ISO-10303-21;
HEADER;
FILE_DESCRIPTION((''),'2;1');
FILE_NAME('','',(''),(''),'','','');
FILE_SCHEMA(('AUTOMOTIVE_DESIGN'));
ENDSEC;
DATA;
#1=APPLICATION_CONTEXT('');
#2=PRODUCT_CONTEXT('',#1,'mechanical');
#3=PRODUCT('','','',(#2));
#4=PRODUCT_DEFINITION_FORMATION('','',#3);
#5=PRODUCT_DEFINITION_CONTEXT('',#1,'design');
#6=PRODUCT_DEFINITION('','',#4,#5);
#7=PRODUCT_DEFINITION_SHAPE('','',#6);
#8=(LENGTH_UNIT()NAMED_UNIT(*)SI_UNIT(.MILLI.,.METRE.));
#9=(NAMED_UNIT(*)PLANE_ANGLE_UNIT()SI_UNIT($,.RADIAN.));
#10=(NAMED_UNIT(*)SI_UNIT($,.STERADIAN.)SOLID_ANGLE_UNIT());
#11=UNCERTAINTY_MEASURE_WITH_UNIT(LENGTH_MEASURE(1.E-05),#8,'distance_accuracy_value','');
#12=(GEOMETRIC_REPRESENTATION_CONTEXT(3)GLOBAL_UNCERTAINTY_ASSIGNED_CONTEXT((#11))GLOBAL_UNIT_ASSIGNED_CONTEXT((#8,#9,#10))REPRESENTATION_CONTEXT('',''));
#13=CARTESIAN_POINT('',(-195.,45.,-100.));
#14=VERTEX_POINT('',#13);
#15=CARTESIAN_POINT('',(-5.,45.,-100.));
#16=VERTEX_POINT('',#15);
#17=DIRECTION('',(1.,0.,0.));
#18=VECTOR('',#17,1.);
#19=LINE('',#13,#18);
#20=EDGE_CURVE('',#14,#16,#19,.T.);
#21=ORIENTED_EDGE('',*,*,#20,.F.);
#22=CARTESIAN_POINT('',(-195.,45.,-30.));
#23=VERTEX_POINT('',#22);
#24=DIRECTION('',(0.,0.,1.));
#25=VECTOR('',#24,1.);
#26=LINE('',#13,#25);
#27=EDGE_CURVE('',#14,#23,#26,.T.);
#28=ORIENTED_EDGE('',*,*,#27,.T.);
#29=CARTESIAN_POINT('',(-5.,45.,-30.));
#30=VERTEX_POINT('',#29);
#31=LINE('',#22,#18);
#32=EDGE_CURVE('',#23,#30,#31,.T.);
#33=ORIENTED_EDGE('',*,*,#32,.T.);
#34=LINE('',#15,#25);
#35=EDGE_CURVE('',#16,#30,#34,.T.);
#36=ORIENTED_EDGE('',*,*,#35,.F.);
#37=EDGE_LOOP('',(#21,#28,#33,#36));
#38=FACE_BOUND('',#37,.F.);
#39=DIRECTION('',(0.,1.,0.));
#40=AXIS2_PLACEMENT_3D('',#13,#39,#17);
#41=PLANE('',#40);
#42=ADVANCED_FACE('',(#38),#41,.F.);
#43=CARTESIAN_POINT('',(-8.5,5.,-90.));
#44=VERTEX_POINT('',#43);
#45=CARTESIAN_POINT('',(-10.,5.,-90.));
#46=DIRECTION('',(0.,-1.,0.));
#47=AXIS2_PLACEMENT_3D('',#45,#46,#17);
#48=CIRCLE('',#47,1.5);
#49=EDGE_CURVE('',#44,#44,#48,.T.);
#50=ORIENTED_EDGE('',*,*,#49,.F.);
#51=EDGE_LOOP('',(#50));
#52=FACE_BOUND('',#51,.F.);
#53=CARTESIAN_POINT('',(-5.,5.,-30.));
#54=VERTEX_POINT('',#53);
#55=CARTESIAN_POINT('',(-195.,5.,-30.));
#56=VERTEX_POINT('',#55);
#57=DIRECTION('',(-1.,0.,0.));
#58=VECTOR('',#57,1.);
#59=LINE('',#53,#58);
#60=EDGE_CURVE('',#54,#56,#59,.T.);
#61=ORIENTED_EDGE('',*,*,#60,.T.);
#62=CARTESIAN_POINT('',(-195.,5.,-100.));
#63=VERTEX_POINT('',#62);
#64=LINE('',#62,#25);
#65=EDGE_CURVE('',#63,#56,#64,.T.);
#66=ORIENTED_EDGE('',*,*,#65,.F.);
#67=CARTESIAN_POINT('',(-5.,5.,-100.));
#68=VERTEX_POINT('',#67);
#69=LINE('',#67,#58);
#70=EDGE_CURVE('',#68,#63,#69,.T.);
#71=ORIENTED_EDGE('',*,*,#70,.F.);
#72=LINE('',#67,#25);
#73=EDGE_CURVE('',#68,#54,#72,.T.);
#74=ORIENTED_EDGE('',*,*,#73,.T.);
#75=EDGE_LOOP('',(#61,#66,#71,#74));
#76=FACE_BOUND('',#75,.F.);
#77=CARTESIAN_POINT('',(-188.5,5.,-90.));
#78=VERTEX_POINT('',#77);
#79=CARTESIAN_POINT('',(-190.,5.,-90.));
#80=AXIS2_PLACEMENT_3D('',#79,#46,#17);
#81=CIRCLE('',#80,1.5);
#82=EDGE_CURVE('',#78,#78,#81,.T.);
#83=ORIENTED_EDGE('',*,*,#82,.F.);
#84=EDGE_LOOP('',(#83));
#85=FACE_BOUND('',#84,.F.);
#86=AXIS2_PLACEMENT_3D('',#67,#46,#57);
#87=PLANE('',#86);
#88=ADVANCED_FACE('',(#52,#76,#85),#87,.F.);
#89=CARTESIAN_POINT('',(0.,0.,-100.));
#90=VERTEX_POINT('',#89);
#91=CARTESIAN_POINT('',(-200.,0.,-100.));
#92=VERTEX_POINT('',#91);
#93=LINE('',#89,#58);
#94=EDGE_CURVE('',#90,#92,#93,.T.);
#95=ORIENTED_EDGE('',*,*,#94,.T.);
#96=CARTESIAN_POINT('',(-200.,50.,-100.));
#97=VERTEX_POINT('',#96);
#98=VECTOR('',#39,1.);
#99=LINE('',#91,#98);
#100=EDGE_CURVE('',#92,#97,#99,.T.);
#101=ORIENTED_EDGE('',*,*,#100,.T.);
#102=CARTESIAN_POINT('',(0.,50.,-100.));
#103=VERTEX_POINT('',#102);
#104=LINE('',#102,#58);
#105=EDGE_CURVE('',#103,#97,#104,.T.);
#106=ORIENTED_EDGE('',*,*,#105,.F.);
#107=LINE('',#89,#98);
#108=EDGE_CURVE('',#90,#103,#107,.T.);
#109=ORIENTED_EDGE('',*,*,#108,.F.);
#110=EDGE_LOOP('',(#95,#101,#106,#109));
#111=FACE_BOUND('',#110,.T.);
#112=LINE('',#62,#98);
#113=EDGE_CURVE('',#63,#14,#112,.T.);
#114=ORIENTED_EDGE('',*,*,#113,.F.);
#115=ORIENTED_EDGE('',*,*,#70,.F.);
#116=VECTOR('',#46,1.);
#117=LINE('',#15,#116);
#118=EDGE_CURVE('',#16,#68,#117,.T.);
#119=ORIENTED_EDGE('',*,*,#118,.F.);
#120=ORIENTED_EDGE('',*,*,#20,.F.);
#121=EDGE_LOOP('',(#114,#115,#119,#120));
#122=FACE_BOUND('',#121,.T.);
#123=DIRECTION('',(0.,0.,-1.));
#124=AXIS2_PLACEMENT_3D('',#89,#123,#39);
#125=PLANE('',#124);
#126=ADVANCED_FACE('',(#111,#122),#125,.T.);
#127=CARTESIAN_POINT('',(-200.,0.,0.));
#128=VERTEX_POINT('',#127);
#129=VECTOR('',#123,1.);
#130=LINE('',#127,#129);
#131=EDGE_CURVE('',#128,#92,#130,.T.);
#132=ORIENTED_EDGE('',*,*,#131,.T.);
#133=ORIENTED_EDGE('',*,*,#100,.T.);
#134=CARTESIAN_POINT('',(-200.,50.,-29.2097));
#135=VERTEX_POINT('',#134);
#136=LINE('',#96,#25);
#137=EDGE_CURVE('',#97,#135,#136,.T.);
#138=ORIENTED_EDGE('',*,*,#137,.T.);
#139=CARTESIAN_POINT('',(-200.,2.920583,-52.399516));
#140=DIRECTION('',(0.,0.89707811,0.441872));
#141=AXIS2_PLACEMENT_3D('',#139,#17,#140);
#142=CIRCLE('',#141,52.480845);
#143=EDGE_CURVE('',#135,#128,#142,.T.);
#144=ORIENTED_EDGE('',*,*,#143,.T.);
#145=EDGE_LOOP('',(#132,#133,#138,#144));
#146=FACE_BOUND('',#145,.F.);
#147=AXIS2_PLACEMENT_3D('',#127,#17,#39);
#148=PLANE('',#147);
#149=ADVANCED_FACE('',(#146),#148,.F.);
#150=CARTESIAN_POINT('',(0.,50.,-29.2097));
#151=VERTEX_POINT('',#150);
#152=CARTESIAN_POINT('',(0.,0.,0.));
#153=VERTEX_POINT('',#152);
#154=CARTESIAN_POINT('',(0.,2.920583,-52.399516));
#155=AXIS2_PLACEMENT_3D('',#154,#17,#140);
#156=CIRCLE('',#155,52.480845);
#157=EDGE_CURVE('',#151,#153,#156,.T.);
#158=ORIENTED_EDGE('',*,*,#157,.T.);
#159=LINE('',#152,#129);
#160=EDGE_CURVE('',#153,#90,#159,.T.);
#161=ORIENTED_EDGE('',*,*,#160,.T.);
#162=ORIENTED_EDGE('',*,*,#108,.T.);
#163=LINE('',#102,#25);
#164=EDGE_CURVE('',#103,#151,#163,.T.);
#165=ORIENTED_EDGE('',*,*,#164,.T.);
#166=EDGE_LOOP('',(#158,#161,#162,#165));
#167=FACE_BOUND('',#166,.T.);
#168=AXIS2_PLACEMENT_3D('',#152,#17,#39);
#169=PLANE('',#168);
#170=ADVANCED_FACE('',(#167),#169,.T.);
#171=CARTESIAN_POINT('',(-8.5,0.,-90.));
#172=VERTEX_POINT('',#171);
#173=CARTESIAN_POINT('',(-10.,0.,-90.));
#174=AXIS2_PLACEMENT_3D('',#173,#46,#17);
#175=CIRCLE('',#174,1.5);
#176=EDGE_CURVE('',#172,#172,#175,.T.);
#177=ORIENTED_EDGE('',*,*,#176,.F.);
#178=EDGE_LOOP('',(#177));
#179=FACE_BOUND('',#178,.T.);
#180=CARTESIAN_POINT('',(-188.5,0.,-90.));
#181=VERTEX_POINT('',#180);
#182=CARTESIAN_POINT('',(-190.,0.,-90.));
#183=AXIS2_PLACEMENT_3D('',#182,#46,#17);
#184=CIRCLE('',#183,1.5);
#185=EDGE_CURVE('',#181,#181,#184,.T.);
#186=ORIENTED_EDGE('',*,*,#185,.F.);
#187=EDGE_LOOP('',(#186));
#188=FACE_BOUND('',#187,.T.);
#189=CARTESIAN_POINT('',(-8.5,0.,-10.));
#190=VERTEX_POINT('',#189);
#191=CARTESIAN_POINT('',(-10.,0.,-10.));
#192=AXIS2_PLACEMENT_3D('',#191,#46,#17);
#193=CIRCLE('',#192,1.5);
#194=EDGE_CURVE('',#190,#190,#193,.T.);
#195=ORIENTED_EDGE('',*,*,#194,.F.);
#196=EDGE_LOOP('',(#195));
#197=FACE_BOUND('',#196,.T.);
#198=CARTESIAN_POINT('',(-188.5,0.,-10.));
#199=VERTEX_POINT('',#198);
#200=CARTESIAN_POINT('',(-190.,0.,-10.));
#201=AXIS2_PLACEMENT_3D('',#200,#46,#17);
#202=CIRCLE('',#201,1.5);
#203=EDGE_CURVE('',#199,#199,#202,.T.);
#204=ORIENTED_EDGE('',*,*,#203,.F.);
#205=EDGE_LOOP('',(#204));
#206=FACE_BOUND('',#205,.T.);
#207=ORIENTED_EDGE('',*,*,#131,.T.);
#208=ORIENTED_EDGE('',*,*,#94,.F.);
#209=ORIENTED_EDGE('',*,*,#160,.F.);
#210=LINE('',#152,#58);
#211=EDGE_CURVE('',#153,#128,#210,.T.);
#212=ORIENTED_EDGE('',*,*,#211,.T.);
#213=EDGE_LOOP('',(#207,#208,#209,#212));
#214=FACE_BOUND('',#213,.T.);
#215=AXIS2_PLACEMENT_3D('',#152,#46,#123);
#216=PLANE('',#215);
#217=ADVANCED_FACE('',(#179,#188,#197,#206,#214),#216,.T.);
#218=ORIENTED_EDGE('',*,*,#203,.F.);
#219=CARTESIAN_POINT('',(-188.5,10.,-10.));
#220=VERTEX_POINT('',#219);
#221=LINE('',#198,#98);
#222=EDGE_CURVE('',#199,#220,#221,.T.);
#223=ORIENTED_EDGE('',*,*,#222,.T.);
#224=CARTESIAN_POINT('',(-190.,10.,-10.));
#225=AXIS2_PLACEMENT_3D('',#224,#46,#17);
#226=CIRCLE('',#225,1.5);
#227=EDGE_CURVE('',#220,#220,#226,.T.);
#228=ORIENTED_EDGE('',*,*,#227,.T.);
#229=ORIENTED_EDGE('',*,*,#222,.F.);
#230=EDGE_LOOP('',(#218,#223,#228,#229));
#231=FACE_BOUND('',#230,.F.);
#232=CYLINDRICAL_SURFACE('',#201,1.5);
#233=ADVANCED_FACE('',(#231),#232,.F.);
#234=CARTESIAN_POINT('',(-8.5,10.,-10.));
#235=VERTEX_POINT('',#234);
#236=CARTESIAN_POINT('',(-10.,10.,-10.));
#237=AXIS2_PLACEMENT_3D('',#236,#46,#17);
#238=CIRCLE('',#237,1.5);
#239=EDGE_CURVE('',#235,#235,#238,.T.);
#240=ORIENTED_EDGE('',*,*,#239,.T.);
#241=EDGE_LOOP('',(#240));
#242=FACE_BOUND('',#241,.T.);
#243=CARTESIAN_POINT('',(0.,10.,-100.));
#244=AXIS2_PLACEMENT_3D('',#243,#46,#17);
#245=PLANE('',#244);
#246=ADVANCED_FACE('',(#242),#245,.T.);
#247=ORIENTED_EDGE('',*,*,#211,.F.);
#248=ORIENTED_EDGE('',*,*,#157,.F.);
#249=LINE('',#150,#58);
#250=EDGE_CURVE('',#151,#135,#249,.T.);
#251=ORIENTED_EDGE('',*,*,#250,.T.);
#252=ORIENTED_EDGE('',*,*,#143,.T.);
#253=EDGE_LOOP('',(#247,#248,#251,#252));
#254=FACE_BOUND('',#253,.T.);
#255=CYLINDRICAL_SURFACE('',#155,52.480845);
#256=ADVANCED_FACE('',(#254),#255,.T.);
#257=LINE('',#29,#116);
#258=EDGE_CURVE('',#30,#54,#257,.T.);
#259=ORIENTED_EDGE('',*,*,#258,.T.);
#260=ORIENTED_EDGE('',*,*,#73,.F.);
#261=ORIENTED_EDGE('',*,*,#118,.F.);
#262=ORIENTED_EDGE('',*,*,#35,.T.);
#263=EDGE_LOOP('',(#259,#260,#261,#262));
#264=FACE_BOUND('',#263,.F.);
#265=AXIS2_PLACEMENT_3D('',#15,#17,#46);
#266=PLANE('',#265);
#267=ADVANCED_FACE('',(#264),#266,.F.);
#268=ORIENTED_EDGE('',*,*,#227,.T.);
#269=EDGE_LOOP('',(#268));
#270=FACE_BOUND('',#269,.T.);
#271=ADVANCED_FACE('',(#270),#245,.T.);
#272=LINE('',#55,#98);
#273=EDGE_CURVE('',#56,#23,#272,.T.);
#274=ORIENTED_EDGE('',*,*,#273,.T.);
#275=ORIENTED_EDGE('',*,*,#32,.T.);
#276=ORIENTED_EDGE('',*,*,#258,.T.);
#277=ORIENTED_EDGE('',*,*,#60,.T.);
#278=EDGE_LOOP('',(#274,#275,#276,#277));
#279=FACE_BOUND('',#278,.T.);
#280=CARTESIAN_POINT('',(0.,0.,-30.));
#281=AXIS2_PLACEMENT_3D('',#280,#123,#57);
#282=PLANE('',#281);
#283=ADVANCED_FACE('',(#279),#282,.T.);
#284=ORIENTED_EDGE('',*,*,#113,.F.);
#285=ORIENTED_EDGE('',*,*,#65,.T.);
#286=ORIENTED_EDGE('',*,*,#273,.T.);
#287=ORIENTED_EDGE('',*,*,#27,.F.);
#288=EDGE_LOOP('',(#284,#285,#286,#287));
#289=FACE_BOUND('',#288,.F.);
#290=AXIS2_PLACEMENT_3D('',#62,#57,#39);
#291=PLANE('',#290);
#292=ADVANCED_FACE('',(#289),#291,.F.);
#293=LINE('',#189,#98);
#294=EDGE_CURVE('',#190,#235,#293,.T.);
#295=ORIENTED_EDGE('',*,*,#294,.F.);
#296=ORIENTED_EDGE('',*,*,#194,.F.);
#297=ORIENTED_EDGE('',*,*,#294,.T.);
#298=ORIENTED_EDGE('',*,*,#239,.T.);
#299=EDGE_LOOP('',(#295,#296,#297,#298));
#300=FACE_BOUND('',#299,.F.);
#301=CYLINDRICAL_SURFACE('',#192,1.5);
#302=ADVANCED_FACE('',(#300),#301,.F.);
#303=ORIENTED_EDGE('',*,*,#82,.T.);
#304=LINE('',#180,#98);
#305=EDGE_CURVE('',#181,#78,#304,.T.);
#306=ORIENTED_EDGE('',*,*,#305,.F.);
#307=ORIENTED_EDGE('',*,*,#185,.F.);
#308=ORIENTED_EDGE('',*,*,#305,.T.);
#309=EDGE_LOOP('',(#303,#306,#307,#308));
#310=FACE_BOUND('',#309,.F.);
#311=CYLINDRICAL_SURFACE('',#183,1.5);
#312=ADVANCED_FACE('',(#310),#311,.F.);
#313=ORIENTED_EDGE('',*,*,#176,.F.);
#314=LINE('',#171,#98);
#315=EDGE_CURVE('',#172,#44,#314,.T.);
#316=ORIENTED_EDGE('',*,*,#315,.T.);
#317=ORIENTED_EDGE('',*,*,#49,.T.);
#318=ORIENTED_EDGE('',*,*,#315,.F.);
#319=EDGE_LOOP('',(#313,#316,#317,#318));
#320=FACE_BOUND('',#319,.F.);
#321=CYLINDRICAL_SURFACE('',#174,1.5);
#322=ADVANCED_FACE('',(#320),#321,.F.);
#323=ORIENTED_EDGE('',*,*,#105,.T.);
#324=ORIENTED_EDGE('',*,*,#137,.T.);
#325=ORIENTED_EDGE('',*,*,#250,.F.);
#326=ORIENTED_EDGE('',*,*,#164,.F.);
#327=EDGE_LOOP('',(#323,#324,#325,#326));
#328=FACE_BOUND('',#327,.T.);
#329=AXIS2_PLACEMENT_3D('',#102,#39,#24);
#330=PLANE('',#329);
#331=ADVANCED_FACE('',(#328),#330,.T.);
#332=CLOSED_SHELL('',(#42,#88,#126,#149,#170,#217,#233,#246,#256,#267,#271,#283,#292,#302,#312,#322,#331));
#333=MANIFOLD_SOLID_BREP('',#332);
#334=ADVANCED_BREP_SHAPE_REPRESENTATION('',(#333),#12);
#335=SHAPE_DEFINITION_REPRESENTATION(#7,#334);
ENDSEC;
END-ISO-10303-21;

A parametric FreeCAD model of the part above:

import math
import FreeCAD as App
import Part
import Sketcher
Q = App.Units.Quantity


def add_polygon(sketch, points):
    """Adds a closed chain of lines whose ends are joined by coincident constraints."""
    first, n = sketch.GeometryCount, len(points)
    for a, b in zip(points, points[1:] + points[:1]):
        sketch.addGeometry(Part.LineSegment(App.Vector(*a, 0), App.Vector(*b, 0)), False)
    for i in range(n):
        sketch.addConstraint(Sketcher.Constraint("Coincident", first + i, 2, first + (i + 1) % n, 1))

doc = App.newDocument("Part")
params = doc.addObject("Spreadsheet::Sheet", "Params")
for row, (alias, value) in enumerate([
    ("sketch1_width", "50 mm"),
    ("sketch1_height", "100 mm"),
    ("pad1_length", "200 mm"),
    ("sketch2_width", "190 mm"),
    ("sketch2_height", "40 mm"),
    ("pocket1_length", "70 mm"),
    ("sketch3_diameter", "3 mm"),
    ("pocket2_length", "10 mm"),
], start=1):
    params.set(f"A{row}", alias)
    params.set(f"B{row}", "=" + value)
    params.setAlias(f"B{row}", alias)

body = doc.addObject("PartDesign::Body", "Body")

# Sketch on YZ plane
sketch1 = body.newObject("Sketcher::SketchObject", "Sketch")
sketch1.AttachmentSupport = (doc.getObject("YZ_Plane"), [""])
sketch1.MapMode = "FlatFace"
sketch1.addGeometry(Part.ArcOfCircle(Part.Circle(App.Vector(3, -52, 0), App.Vector(0, 0, 1), 52), math.radians(26), math.radians(93)), False)
sketch1.addGeometry(Part.LineSegment(App.Vector(0, 0, 0), App.Vector(0, -100, 0)), False)
sketch1.addGeometry(Part.LineSegment(App.Vector(0, -100, 0), App.Vector(50, -100, 0)), False)
sketch1.addGeometry(Part.LineSegment(App.Vector(50, -100, 0), App.Vector(50, -29, 0)), False)
sketch1.addConstraint(Sketcher.Constraint("Coincident", 0, 2, 1, 1))
sketch1.addConstraint(Sketcher.Constraint("Coincident", 1, 2, 2, 1))
sketch1.addConstraint(Sketcher.Constraint("Coincident", 2, 2, 3, 1))
sketch1.addConstraint(Sketcher.Constraint("Coincident", 3, 2, 0, 1))
sketch1.addConstraint(Sketcher.Constraint("Vertical", 1))
sketch1.addConstraint(Sketcher.Constraint("Horizontal", 2))
sketch1.addConstraint(Sketcher.Constraint("Vertical", 3))
sketch1.addConstraint(Sketcher.Constraint("Coincident", 0, 2, -1, 1))
sketch1.addConstraint(Sketcher.Constraint("DistanceX", 2, 1, 2, 2, Q("50 mm")))
sketch1.addConstraint(Sketcher.Constraint("DistanceY", 1, 2, 1, 1, Q("100 mm")))
sketch1.addConstraint(Sketcher.Constraint("Radius", 0, Q("52.4808 mm")))
sketch1.addConstraint(Sketcher.Constraint("DistanceY", 3, 1, 3, 2, Q("70.7903 mm")))
sketch1.setExpression("Constraints[8]", "Params.sketch1_width")
sketch1.setExpression("Constraints[9]", "Params.sketch1_height")
pad1 = body.newObject("PartDesign::Pad", "Pad")
pad1.Profile = sketch1
pad1.setExpression("Length", "Params.pad1_length")
pad1.Reversed = True

# Sketch on XY plane
sketch2 = body.newObject("Sketcher::SketchObject", "Sketch001")
sketch2.AttachmentSupport = (doc.getObject("XY_Plane"), [""])
sketch2.MapMode = "FlatFace"
sketch2.AttachmentOffset = App.Placement(App.Vector(0, 0, -100), App.Rotation())
add_polygon(sketch2, [(-195, 45), (-5, 45), (-5, 5), (-195, 5)])  # lines 0-3
sketch2.addConstraint(Sketcher.Constraint("Horizontal", 0))
sketch2.addConstraint(Sketcher.Constraint("Vertical", 1))
sketch2.addConstraint(Sketcher.Constraint("Horizontal", 2))
sketch2.addConstraint(Sketcher.Constraint("Vertical", 3))
sketch2.addConstraint(Sketcher.Constraint("DistanceX", 0, 2, -1, 1, Q("5 mm")))
sketch2.addConstraint(Sketcher.Constraint("DistanceY", -1, 1, 1, 2, Q("5 mm")))
sketch2.addConstraint(Sketcher.Constraint("DistanceX", 0, 1, 0, 2, Q("190 mm")))
sketch2.addConstraint(Sketcher.Constraint("DistanceY", 1, 2, 1, 1, Q("40 mm")))
sketch2.setExpression("Constraints[10]", "Params.sketch2_width")
sketch2.setExpression("Constraints[11]", "Params.sketch2_height")
pocket1 = body.newObject("PartDesign::Pocket", "Pocket")
pocket1.Profile = sketch2
pocket1.setExpression("Length", "Params.pocket1_length")
pocket1.Reversed = True

# Sketch on XZ plane
sketch3 = body.newObject("Sketcher::SketchObject", "Sketch002")
sketch3.AttachmentSupport = (doc.getObject("XZ_Plane"), [""])
sketch3.MapMode = "FlatFace"
sketch3.addGeometry(Part.Circle(App.Vector(-10, -10, 0), App.Vector(0, 0, 1), 1.5), False)
sketch3.addGeometry(Part.Circle(App.Vector(-10, -90, 0), App.Vector(0, 0, 1), 1.5), False)
sketch3.addGeometry(Part.Circle(App.Vector(-190, -10, 0), App.Vector(0, 0, 1), 1.5), False)
sketch3.addGeometry(Part.Circle(App.Vector(-190, -90, 0), App.Vector(0, 0, 1), 1.5), False)
sketch3.addConstraint(Sketcher.Constraint("Equal", 0, 1))
sketch3.addConstraint(Sketcher.Constraint("Equal", 1, 2))
sketch3.addConstraint(Sketcher.Constraint("Equal", 2, 3))
sketch3.addConstraint(Sketcher.Constraint("Horizontal", 0, 3, 2, 3))
sketch3.addConstraint(Sketcher.Constraint("Horizontal", 1, 3, 3, 3))
sketch3.addConstraint(Sketcher.Constraint("Vertical", 0, 3, 1, 3))
sketch3.addConstraint(Sketcher.Constraint("Vertical", 2, 3, 3, 3))
sketch3.addConstraint(Sketcher.Constraint("Diameter", 0, Q("3 mm")))
sketch3.addConstraint(Sketcher.Constraint("DistanceX", 0, 3, -1, 1, Q("10 mm")))
sketch3.addConstraint(Sketcher.Constraint("DistanceY", 0, 3, -1, 1, Q("10 mm")))
sketch3.addConstraint(Sketcher.Constraint("DistanceY", 1, 3, -1, 1, Q("90 mm")))
sketch3.addConstraint(Sketcher.Constraint("DistanceX", 2, 3, -1, 1, Q("190 mm")))
sketch3.setExpression("Constraints[7]", "Params.sketch3_diameter")
pocket2 = body.newObject("PartDesign::Pocket", "Pocket001")
pocket2.Profile = sketch3
pocket2.setExpression("Length", "Params.pocket2_length")

doc.recompute()
